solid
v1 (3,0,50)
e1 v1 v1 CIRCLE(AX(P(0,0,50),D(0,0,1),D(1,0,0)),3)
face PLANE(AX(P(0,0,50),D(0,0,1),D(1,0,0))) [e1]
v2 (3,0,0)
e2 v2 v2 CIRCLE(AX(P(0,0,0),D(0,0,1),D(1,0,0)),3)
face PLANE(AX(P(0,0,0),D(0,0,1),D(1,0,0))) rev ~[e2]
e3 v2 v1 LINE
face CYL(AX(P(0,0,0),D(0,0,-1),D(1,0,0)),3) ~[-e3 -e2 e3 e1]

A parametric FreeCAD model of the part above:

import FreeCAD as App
import Part
import Sketcher
Q = App.Units.Quantity

doc = App.newDocument("Part")
body = doc.addObject("PartDesign::Body", "Body")

# Sketch on XY plane
sketch1 = body.newObject("Sketcher::SketchObject", "Sketch")
sketch1.AttachmentSupport = (doc.getObject("XY_Plane"), [""])
sketch1.MapMode = "FlatFace"
sketch1.addGeometry(Part.Circle(App.Vector(0, 0, 0), App.Vector(0, 0, 1), 3), False)
sketch1.addConstraint([
    Sketcher.Constraint("Coincident", 0, 3, -1, 1),
    Sketcher.Constraint("Diameter", 0, Q("6 mm")),
])
pad1 = body.newObject("PartDesign::Pad", "Pad")
pad1.Profile = sketch1
pad1.Length = 50

doc.recompute()
